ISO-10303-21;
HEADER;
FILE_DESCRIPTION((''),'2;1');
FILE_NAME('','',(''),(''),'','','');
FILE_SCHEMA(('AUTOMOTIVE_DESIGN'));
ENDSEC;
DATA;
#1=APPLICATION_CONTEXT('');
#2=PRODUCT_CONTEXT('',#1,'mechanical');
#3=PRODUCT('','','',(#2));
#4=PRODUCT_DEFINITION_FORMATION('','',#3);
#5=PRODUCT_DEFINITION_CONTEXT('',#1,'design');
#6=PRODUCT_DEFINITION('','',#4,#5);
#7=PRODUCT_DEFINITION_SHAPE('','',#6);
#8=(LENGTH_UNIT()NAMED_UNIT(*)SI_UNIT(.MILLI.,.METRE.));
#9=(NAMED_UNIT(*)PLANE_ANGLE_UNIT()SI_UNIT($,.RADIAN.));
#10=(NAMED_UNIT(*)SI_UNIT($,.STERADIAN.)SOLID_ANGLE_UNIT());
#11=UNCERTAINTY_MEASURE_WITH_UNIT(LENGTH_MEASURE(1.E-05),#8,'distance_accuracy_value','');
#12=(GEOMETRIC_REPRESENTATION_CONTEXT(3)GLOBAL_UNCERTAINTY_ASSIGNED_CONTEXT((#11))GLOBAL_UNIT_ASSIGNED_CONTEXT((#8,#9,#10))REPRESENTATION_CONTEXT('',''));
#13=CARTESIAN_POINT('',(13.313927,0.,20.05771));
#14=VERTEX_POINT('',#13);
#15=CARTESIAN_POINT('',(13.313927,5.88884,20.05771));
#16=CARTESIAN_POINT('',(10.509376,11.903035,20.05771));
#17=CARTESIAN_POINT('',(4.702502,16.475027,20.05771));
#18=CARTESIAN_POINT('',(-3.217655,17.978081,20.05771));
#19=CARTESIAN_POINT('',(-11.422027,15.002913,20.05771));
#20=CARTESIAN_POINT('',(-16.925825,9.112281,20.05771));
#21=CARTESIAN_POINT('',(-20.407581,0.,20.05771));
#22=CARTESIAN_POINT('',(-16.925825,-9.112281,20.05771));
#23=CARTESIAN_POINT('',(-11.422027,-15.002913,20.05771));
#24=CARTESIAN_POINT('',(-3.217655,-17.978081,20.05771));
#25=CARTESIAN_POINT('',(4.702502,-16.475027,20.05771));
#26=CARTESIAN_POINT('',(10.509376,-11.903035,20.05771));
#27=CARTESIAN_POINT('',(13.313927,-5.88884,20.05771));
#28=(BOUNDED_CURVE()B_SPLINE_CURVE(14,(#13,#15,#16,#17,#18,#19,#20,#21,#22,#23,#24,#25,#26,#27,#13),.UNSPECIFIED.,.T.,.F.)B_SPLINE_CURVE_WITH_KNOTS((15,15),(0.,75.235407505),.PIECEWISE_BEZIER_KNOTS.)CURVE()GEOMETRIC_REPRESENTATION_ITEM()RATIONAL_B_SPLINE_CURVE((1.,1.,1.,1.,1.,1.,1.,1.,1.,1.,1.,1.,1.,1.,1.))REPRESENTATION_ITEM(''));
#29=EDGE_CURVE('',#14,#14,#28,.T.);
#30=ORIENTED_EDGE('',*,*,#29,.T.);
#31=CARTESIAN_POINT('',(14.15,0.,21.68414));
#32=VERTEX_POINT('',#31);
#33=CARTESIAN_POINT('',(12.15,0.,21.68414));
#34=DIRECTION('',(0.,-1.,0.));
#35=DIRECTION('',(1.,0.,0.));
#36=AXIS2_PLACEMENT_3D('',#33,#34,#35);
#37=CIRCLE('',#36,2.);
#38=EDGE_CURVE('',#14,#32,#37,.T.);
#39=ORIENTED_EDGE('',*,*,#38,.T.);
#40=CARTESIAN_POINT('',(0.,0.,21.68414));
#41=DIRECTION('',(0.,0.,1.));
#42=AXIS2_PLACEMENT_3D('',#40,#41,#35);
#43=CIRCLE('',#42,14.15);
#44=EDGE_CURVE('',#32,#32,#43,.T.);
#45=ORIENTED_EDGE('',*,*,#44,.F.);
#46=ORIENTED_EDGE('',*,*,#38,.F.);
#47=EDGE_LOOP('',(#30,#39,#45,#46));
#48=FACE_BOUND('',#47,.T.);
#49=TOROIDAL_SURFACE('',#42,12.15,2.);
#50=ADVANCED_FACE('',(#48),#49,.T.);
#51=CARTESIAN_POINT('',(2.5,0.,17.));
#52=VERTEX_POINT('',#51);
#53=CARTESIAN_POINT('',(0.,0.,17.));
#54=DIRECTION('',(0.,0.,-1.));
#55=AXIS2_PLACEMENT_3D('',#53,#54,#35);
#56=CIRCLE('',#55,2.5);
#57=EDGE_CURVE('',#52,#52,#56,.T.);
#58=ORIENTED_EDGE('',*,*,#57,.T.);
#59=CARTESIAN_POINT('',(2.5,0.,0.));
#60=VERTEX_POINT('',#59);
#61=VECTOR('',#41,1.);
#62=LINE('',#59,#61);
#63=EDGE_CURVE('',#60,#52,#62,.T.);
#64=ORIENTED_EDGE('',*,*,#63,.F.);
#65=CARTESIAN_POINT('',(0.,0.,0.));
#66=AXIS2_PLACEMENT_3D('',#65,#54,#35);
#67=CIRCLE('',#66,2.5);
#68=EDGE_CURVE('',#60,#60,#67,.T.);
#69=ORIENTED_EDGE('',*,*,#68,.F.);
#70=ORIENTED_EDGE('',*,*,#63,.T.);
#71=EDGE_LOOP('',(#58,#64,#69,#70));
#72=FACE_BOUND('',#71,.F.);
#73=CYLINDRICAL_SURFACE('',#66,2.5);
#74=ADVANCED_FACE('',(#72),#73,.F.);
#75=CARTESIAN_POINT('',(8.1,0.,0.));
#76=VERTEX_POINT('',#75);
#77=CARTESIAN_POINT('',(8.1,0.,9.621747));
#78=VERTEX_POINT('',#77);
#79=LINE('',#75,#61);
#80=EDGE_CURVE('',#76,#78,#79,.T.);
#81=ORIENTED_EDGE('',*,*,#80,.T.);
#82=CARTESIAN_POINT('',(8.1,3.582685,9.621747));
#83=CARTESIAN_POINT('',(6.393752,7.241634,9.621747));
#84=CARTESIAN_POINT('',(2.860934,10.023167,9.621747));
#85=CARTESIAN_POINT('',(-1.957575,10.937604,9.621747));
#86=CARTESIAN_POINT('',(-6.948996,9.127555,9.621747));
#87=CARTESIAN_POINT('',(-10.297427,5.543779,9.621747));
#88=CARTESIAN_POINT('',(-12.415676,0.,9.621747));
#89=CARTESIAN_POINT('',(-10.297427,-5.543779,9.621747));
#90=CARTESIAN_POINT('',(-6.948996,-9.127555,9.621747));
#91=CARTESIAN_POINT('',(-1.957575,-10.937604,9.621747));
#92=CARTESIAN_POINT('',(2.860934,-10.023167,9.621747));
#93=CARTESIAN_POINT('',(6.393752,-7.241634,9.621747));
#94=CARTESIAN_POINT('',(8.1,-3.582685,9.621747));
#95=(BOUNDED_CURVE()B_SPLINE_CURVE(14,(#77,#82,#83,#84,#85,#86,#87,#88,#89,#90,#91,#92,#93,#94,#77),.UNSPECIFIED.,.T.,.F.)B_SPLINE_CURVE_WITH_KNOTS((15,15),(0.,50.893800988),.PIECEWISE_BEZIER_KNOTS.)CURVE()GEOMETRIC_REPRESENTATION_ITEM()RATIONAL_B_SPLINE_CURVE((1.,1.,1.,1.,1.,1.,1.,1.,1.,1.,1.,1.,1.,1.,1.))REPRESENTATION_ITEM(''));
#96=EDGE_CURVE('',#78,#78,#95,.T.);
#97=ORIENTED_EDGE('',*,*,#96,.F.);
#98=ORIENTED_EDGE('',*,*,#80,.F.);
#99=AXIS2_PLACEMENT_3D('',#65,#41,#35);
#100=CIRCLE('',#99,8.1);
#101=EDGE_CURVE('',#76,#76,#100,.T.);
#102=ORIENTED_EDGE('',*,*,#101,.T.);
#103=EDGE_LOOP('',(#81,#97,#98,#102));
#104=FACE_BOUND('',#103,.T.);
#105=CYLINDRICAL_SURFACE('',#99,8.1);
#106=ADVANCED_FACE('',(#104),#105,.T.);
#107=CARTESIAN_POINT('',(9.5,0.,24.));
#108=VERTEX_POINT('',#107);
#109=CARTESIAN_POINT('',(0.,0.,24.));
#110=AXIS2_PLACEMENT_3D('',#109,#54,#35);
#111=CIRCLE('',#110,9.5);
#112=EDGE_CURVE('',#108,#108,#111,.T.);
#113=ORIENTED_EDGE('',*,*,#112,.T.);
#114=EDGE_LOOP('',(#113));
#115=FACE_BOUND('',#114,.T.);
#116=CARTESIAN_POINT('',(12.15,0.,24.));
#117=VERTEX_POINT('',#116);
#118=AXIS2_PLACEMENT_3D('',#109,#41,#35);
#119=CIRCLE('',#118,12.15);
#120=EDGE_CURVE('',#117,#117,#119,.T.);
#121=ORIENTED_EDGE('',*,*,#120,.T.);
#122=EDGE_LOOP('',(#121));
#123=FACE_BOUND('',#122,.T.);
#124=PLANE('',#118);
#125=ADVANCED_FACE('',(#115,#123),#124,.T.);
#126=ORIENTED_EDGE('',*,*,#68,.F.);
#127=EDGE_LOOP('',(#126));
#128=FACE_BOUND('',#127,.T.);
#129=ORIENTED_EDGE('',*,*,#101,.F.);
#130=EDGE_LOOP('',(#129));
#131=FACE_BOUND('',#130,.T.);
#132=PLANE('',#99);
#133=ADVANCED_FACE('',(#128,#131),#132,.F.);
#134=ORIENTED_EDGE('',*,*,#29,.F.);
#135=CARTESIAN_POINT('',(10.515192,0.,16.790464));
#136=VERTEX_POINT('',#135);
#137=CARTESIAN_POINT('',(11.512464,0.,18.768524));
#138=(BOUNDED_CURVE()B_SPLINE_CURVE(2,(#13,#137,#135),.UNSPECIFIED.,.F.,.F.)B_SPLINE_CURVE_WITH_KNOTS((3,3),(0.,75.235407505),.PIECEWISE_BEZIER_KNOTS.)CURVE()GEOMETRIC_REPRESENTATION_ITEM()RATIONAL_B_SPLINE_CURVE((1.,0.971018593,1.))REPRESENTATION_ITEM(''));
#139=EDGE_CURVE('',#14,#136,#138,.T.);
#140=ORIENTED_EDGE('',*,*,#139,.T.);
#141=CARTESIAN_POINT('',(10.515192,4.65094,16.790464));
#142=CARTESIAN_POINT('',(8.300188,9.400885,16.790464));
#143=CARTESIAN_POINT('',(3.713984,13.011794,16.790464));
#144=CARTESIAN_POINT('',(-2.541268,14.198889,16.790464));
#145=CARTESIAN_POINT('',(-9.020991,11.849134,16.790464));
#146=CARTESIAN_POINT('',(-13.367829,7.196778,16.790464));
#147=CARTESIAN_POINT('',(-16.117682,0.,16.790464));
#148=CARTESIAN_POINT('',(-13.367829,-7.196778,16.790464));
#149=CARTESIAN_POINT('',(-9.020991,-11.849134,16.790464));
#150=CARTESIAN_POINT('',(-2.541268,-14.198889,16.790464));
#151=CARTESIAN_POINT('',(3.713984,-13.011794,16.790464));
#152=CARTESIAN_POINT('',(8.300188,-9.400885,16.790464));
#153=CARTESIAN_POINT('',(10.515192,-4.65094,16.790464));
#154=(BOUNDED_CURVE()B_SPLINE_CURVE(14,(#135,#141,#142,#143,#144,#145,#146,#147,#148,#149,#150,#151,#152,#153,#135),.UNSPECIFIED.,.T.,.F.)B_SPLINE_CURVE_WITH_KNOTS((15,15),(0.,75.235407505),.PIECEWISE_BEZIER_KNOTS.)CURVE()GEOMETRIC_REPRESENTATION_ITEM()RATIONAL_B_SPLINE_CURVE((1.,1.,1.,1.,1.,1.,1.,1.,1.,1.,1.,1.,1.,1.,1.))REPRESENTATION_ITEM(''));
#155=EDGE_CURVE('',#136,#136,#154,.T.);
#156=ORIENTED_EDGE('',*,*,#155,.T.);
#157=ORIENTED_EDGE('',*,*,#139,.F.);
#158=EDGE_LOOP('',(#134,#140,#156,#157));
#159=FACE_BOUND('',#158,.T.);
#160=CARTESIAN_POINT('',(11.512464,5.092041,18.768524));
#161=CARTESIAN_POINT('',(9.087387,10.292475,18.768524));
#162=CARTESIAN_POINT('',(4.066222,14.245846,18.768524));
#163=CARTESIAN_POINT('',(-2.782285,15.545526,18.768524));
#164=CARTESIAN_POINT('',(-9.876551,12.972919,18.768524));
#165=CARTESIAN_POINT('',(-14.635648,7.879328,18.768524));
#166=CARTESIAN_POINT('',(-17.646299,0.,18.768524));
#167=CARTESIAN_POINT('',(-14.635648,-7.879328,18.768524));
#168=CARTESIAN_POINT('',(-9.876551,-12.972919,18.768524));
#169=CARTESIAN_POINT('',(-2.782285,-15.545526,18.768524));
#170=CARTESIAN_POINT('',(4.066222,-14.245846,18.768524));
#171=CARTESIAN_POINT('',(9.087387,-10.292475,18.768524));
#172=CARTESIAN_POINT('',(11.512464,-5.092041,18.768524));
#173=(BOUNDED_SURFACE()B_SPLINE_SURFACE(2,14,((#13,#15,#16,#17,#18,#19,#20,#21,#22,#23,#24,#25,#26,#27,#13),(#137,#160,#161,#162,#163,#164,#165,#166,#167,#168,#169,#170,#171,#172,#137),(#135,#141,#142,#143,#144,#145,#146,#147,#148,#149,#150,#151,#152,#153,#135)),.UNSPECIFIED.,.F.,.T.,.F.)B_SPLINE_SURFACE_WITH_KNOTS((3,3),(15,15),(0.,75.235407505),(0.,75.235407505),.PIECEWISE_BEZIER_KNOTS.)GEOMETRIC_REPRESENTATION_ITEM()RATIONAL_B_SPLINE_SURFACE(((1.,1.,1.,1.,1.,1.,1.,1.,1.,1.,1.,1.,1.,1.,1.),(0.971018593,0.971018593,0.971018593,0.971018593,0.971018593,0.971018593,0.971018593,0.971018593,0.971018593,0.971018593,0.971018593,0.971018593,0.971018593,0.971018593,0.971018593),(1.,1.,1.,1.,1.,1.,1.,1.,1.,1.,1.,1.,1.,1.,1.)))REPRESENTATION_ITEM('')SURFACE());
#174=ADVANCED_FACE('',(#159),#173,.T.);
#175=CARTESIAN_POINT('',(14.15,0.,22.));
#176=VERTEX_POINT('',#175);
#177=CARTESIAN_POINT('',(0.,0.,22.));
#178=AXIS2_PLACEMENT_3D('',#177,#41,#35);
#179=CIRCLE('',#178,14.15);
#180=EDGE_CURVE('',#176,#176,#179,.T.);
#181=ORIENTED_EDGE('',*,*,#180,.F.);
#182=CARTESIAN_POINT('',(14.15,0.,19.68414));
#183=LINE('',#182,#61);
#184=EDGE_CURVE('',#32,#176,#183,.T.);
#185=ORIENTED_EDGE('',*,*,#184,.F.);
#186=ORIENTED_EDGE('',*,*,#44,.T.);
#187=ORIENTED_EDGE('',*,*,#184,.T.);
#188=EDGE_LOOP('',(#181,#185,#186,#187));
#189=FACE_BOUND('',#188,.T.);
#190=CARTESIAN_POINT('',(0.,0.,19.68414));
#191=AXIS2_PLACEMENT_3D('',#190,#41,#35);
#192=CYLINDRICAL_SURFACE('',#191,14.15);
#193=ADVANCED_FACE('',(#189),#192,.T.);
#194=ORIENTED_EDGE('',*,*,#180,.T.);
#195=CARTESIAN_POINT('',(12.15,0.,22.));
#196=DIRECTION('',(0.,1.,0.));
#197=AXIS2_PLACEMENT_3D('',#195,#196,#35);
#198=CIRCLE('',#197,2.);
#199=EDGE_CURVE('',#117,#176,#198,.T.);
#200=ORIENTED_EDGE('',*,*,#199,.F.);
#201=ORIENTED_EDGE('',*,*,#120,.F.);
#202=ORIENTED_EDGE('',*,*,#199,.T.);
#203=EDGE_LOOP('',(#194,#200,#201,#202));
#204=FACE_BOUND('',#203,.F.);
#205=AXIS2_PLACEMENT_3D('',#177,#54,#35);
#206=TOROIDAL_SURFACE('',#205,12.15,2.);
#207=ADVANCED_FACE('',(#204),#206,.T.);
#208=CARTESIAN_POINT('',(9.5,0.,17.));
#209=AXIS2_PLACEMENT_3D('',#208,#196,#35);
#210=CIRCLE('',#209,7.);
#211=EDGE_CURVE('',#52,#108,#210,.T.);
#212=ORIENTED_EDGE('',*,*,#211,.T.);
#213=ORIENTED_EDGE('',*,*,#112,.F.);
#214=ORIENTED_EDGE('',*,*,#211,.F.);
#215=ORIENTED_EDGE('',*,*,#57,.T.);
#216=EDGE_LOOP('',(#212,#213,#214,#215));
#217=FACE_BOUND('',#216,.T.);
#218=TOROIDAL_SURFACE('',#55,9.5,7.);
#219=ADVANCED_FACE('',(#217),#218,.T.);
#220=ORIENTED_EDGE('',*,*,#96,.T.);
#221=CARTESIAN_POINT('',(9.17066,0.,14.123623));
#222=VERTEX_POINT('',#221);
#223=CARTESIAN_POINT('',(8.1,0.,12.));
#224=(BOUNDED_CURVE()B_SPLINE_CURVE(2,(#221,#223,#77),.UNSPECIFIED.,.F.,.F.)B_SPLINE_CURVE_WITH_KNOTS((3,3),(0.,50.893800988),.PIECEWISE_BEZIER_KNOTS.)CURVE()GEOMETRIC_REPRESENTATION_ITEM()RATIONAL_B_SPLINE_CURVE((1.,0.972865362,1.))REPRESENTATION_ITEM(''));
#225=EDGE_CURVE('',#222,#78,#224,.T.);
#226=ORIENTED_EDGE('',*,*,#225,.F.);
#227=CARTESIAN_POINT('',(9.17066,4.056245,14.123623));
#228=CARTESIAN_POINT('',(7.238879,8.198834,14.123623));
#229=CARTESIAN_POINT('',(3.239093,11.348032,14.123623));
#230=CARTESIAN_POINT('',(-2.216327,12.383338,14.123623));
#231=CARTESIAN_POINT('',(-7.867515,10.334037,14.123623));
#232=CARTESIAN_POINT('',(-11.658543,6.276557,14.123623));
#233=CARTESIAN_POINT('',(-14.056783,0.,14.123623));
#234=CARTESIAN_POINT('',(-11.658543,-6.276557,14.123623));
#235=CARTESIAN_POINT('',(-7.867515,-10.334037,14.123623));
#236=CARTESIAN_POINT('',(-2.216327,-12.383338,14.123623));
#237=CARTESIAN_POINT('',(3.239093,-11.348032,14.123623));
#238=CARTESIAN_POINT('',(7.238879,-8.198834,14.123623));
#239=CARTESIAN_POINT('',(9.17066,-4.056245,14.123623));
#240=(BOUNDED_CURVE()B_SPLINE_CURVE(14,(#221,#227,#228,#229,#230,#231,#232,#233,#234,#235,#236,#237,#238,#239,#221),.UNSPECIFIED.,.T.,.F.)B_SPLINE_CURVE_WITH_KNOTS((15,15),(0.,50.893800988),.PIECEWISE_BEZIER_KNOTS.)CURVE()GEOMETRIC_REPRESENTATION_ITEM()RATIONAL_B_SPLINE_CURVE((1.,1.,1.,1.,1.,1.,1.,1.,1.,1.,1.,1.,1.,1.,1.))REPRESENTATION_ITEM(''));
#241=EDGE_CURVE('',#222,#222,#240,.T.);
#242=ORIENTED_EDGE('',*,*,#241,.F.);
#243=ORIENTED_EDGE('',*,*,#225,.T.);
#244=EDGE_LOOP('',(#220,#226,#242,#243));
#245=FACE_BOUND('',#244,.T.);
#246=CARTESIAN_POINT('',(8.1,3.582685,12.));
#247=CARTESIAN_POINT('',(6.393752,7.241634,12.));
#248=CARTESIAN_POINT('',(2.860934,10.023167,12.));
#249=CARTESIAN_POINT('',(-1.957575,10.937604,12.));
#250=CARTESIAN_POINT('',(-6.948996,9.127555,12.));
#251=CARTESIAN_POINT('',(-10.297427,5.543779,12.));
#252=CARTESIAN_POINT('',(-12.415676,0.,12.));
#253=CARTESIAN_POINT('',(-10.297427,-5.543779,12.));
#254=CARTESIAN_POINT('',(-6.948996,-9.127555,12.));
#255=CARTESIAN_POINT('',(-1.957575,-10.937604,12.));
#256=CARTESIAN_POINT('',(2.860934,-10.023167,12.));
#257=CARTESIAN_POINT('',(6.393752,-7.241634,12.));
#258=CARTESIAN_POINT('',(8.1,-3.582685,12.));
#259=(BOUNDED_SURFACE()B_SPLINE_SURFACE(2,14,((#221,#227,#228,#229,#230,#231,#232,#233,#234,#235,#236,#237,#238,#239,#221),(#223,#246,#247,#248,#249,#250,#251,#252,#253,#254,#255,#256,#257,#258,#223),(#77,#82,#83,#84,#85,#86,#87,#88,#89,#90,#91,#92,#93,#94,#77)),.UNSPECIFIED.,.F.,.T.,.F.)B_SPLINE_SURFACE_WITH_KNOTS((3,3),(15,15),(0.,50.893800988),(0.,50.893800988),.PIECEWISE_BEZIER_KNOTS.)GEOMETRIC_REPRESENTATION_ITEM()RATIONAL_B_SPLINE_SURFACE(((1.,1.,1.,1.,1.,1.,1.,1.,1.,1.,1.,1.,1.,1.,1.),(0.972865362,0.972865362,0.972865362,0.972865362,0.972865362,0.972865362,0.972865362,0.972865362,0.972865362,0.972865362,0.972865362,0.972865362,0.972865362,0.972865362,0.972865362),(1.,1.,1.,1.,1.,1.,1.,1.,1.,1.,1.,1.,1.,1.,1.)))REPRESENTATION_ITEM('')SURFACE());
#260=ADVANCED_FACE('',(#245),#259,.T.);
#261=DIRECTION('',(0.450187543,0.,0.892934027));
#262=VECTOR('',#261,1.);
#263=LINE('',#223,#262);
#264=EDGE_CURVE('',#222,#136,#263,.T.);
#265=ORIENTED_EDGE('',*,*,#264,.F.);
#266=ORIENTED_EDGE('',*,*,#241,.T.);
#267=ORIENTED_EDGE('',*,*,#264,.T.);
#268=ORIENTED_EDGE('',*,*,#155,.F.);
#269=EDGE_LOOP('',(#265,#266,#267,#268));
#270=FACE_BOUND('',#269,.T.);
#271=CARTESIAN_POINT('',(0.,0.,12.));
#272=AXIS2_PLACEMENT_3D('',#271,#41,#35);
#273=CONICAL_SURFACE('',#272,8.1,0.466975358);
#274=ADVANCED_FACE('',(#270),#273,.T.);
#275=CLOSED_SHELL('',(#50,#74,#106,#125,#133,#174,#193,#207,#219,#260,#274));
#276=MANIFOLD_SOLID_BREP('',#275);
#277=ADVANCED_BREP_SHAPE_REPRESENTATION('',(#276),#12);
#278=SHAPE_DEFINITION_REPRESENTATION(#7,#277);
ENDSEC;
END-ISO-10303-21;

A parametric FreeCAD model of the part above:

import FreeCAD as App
import Part
import Sketcher


def edges_at(feature, points):
    """Names of the edges that pass closest to the given points."""
    edges = feature.Shape.Edges
    near = lambda p: min(range(len(edges)), key=lambda i: edges[i].distToShape(Part.Vertex(*p))[0])
    return sorted({f"Edge{near(p) + 1}" for p in points})


def add_polygon(sketch, points):
    """Adds a closed chain of lines whose ends are joined by coincident constraints."""
    first, n = sketch.GeometryCount, len(points)
    for a, b in zip(points, points[1:] + points[:1]):
        sketch.addGeometry(Part.LineSegment(App.Vector(*a, 0), App.Vector(*b, 0)), False)
    for i in range(n):
        sketch.addConstraint(Sketcher.Constraint("Coincident", first + i, 2, first + (i + 1) % n, 1))

doc = App.newDocument("Part")
params = doc.addObject("Spreadsheet::Sheet", "Params")
for row, (alias, value) in enumerate([
    ("sketch1_height", "24 mm"),
    ("sketch1_height2", "12 mm"),
    ("sketch1_width", "8.1 mm"),
    ("sketch1_width2", "14.15 mm"),
    ("revolution_angle", "360 deg"),
    ("sketch2_diameter", "5 mm"),
    ("pocket1_length", "25 mm"),
    ("fillet_radius", "2 mm"),
    ("fillet2_radius", "9 mm"),
    ("fillet3_radius", "10 mm"),
    ("fillet4_radius", "7 mm"),
], start=1):
    params.set(f"A{row}", alias)
    params.set(f"B{row}", "=" + value)
    params.setAlias(f"B{row}", alias)

body = doc.addObject("PartDesign::Body", "Body")

# Sketch on XZ plane
sketch1 = body.newObject("Sketcher::SketchObject", "Sketch")
sketch1.AttachmentSupport = (doc.getObject("XZ_Plane"), [""])
sketch1.MapMode = "FlatFace"
add_polygon(sketch1, [(0, 24), (0, 0), (8.1, 0), (8.1, 12), (12, 19.7), (14.2, 19.7), (14.2, 24)])  # lines 0-6
sketch1.addConstraint([
    Sketcher.Constraint("Vertical", 0),
    Sketcher.Constraint("Horizontal", 1),
    Sketcher.Constraint("Vertical", 2),
    Sketcher.Constraint("Horizontal", 4),
    Sketcher.Constraint("Vertical", 5),
    Sketcher.Constraint("Horizontal", 6),
    Sketcher.Constraint("Coincident", 0, 2, -1, 1),
    Sketcher.Constraint("DistanceY", 0, 2, 0, 1, 24.0),
    Sketcher.Constraint("DistanceY", 2, 1, 2, 2, 12.0),
    Sketcher.Constraint("DistanceX", 1, 1, 1, 2, 8.1),
    Sketcher.Constraint("DistanceX", 6, 2, 6, 1, 14.15),
    Sketcher.Constraint("DistanceY", 5, 1, 5, 2, 4.31586),
    Sketcher.Constraint("DistanceX", 4, 1, 4, 2, 2.175913),
])
sketch1.setExpression("Constraints[14]", "Params.sketch1_height")
sketch1.setExpression("Constraints[15]", "Params.sketch1_height2")
sketch1.setExpression("Constraints[16]", "Params.sketch1_width")
sketch1.setExpression("Constraints[17]", "Params.sketch1_width2")
revolution = body.newObject("PartDesign::Revolution", "Revolution")
revolution.Profile = sketch1
revolution.ReferenceAxis = (sketch1, ["V_Axis"])
revolution.setExpression("Angle", "Params.revolution_angle")

# Sketch on XY plane
sketch2 = body.newObject("Sketcher::SketchObject", "Sketch001")
sketch2.AttachmentSupport = (doc.getObject("XY_Plane"), [""])
sketch2.MapMode = "FlatFace"
sketch2.addGeometry(Part.Circle(App.Vector(0, 0, 0), App.Vector(0, 0, 1), 2.5), False)
sketch2.addConstraint([
    Sketcher.Constraint("Coincident", 0, 3, -1, 1),
    Sketcher.Constraint("Diameter", 0, 5.0),
])
sketch2.setExpression("Constraints[1]", "Params.sketch2_diameter")
pocket1 = body.newObject("PartDesign::Pocket", "Pocket")
pocket1.Profile = sketch2
pocket1.setExpression("Length", "Params.pocket1_length")
pocket1.Reversed = True
doc.recompute()

fillet = body.newObject("PartDesign::Fillet", "Fillet")
fillet.Base = (pocket1, edges_at(pocket1, [(-14.15, 0, 24), (-14.15, 0, 19.684)]))
fillet.setExpression("Radius", "Params.fillet_radius")
doc.recompute()

fillet2 = body.newObject("PartDesign::Fillet", "Fillet001")
fillet2.Base = (fillet, edges_at(fillet, [(-11.974, 0, 19.684)]))
fillet2.setExpression("Radius", "Params.fillet2_radius")
doc.recompute()

fillet3 = body.newObject("PartDesign::Fillet", "Fillet002")
fillet3.Base = (fillet2, edges_at(fillet2, [(-8.1, 0, 12)]))
fillet3.setExpression("Radius", "Params.fillet3_radius")
doc.recompute()

fillet4 = body.newObject("PartDesign::Fillet", "Fillet003")
fillet4.Base = (fillet3, edges_at(fillet3, [(-2.5, 0, 24)]))
fillet4.setExpression("Radius", "Params.fillet4_radius")

doc.recompute()
